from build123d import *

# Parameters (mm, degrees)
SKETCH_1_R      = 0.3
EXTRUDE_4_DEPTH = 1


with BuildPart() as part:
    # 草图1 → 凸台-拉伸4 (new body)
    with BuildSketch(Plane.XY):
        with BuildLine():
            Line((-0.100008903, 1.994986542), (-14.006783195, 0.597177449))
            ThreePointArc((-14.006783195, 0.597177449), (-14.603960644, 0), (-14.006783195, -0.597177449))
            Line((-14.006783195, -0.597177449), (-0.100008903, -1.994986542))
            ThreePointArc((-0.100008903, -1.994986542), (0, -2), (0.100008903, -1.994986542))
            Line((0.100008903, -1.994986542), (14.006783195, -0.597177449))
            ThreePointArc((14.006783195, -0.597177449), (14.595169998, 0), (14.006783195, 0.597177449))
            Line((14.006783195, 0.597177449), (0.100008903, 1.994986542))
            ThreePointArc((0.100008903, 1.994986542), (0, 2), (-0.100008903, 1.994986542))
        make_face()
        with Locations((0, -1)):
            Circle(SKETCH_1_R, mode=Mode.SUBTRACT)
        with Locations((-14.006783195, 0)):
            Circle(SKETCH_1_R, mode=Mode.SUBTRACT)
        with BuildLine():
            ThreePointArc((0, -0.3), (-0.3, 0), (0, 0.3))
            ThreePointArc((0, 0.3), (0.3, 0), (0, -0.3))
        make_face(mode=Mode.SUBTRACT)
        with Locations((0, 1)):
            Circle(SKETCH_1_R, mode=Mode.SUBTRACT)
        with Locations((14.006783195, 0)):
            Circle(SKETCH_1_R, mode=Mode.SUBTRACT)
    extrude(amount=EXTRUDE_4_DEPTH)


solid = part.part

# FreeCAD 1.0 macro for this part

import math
import FreeCAD as App
import Part
import Sketcher

V = App.Vector
Q = App.Units.Quantity

doc = App.newDocument("Part")
body = doc.addObject("PartDesign::Body", "Body")

sketch1 = body.newObject("Sketcher::SketchObject", "Sketch")
sketch1.AttachmentSupport = (doc.getObject("XY_Plane"), [""])
sketch1.MapMode = "FlatFace"
sketch1.addGeometry(Part.LineSegment(V(-0.100009, 1.994987, 0), V(-14.006783, 0.597177, 0)), False)
sketch1.addGeometry(Part.ArcOfCircle(Part.Circle(V(-14.006783, 0, 0), V(0, 0, 1), 0.597177), math.radians(90), math.radians(270)), False)
sketch1.addGeometry(Part.LineSegment(V(-14.006783, -0.597177, 0), V(-0.100009, -1.994987, 0)), False)
sketch1.addGeometry(Part.ArcOfCircle(Part.Circle(V(0, -1, 0), V(0, 0, 1), 1), math.radians(-95.739683), math.radians(-84.260317)), False)
sketch1.addGeometry(Part.LineSegment(V(0.100009, -1.994987, 0), V(14.006783, -0.597177, 0)), False)
sketch1.addGeometry(Part.ArcOfCircle(Part.Circle(V(13.997927, 0, 0), V(0, 0, 1), 0.597243), math.radians(-89.150349), math.radians(89.150349)), False)
sketch1.addGeometry(Part.LineSegment(V(14.006783, 0.597177, 0), V(0.100009, 1.994987, 0)), False)
sketch1.addGeometry(Part.ArcOfCircle(Part.Circle(V(0, 1, 0), V(0, 0, 1), 1), math.radians(84.260317), math.radians(95.739683)), False)
sketch1.addGeometry(Part.Circle(V(0, -1, 0), V(0, 0, 1), 0.3), False)
sketch1.addGeometry(Part.Circle(V(-14.006783, 0, 0), V(0, 0, 1), 0.3), False)
sketch1.addGeometry(Part.Circle(V(0, 0, 0), V(0, 0, 1), 0.3), False)
sketch1.addGeometry(Part.Circle(V(14.006783, 0, 0), V(0, 0, 1), 0.3), False)
sketch1.addGeometry(Part.Circle(V(0, 1, 0), V(0, 0, 1), 0.3), False)
sketch1.addConstraint(Sketcher.Constraint("Coincident", 0, 2, 1, 1))
sketch1.addConstraint(Sketcher.Constraint("Coincident", 1, 2, 2, 1))
sketch1.addConstraint(Sketcher.Constraint("Coincident", 2, 2, 3, 1))
sketch1.addConstraint(Sketcher.Constraint("Coincident", 3, 2, 4, 1))
sketch1.addConstraint(Sketcher.Constraint("Coincident", 4, 2, 5, 1))
sketch1.addConstraint(Sketcher.Constraint("Coincident", 5, 2, 6, 1))
sketch1.addConstraint(Sketcher.Constraint("Coincident", 6, 2, 7, 1))
sketch1.addConstraint(Sketcher.Constraint("Coincident", 7, 2, 0, 1))
sketch1.addConstraint(Sketcher.Constraint("Coincident", 10, 3, -1, 1))
sketch1.addConstraint(Sketcher.Constraint("Coincident", 8, 3, 3, 3))
sketch1.addConstraint(Sketcher.Constraint("Coincident", 9, 3, 1, 3))
sketch1.addConstraint(Sketcher.Constraint("Coincident", 12, 3, 7, 3))
sketch1.addConstraint(Sketcher.Constraint("PointOnObject", 1, 3, -1))
sketch1.addConstraint(Sketcher.Constraint("PointOnObject", 3, 3, -2))
sketch1.addConstraint(Sketcher.Constraint("PointOnObject", 5, 3, -1))
sketch1.addConstraint(Sketcher.Constraint("PointOnObject", 7, 3, -2))
sketch1.addConstraint(Sketcher.Constraint("PointOnObject", 11, 3, -1))
sketch1.addConstraint(Sketcher.Constraint("Radius", 3, Q("1 mm")))
sketch1.addConstraint(Sketcher.Constraint("Radius", 7, Q("1 mm")))
sketch1.addConstraint(Sketcher.Constraint("Diameter", 8, Q("0.6 mm")))
sketch1.addConstraint(Sketcher.Constraint("Diameter", 9, Q("0.6 mm")))
sketch1.addConstraint(Sketcher.Constraint("Diameter", 10, Q("0.6 mm")))
sketch1.addConstraint(Sketcher.Constraint("Diameter", 11, Q("0.6 mm")))
sketch1.addConstraint(Sketcher.Constraint("Diameter", 12, Q("0.6 mm")))
sketch1.addConstraint(Sketcher.Constraint("DistanceY", 3, 3, -1, 1, Q("1 mm")))
sketch1.addConstraint(Sketcher.Constraint("DistanceY", -1, 1, 7, 3, Q("1 mm")))
sketch1.addConstraint(Sketcher.Constraint("Radius", 1, Q("0.597177 mm")))
sketch1.addConstraint(Sketcher.Constraint("Radius", 5, Q("0.597243 mm")))
sketch1.addConstraint(Sketcher.Constraint("DistanceX", 2, 2, -1, 1, Q("0.100009 mm")))
sketch1.addConstraint(Sketcher.Constraint("DistanceX", -1, 1, 3, 2, Q("0.100009 mm")))
sketch1.addConstraint(Sketcher.Constraint("DistanceX", -1, 1, 6, 2, Q("0.100009 mm")))
sketch1.addConstraint(Sketcher.Constraint("DistanceX", 7, 2, -1, 1, Q("0.100009 mm")))
sketch1.addConstraint(Sketcher.Constraint("DistanceX", 1, 3, 5, 3, Q("28.00471 mm")))
sketch1.addConstraint(Sketcher.Constraint("DistanceY", 3, 2, 4, 2, Q("1.397809 mm")))
sketch1.addConstraint(Sketcher.Constraint("Distance", 0, Q("13.976847 mm")))
sketch1.addConstraint(Sketcher.Constraint("Distance", 2, Q("13.976847 mm")))
sketch1.addConstraint(Sketcher.Constraint("Distance", 4, Q("13.976847 mm")))
sketch1.addConstraint(Sketcher.Constraint("Distance", 6, Q("13.976847 mm")))
sketch1.addConstraint(Sketcher.Constraint("DistanceX", -1, 1, 11, 3, Q("14.006783 mm")))
pad1 = body.newObject("PartDesign::Pad", "Pad")
pad1.Profile = sketch1
pad1.Length = 1

doc.recompute()
